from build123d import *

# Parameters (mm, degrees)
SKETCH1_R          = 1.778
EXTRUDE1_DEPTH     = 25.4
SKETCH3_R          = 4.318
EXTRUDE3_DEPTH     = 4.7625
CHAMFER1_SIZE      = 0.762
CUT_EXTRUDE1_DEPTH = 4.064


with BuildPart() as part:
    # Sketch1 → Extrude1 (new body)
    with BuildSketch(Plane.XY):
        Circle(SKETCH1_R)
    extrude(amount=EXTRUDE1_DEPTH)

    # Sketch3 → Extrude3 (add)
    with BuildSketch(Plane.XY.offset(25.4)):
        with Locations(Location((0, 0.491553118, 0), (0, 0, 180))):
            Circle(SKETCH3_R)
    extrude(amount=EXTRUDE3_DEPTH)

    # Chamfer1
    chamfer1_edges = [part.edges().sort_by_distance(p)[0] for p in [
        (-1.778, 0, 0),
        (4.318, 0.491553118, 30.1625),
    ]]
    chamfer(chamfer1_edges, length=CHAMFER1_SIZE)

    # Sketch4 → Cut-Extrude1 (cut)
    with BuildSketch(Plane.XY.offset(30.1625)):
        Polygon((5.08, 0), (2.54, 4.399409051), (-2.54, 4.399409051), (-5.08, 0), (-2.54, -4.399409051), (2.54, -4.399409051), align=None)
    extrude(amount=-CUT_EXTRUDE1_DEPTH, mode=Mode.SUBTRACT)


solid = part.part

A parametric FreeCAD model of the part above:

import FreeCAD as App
import Part
import Sketcher
Q = App.Units.Quantity


def edges_at(feature, points):
    """Names of the edges that pass closest to the given points."""
    edges = feature.Shape.Edges
    near = lambda p: min(range(len(edges)), key=lambda i: edges[i].distToShape(Part.Vertex(*p))[0])
    return sorted({f"Edge{near(p) + 1}" for p in points})

doc = App.newDocument("Part")
params = doc.addObject("Spreadsheet::Sheet", "Params")
for row, (alias, value) in enumerate([
    ("sketch1_diameter", "0.14 in"),
    ("pad1_length", "1 in"),
    ("sketch2_diameter", "0.34 in"),
    ("pad2_length", "0.1875 in"),
    ("chamfer_size", "0.03 in"),
    ("sketch3_width", "0.2 in"),
    ("sketch3_length", "0.2 in"),
    ("pocket1_length", "0.16 in"),
], start=1):
    params.set(f"A{row}", alias)
    params.set(f"B{row}", "=" + value)
    params.setAlias(f"B{row}", alias)

body = doc.addObject("PartDesign::Body", "Body")

sketch1 = body.newObject("Sketcher::SketchObject", "Sketch")
sketch1.AttachmentSupport = (doc.getObject("XY_Plane"), [""])
sketch1.MapMode = "FlatFace"
sketch1.addGeometry(Part.Circle(App.Vector(0, 0, 0), App.Vector(0, 0, 1), 1.8), False)
sketch1.addConstraint([
    Sketcher.Constraint("Coincident", 0, 3, -1, 1),
    Sketcher.Constraint("Diameter", 0, Q("0.14 in")),
])
sketch1.setExpression("Constraints[1]", "Params.sketch1_diameter")
pad1 = body.newObject("PartDesign::Pad", "Pad")
pad1.Profile = sketch1
pad1.setExpression("Length", "Params.pad1_length")

sketch2 = body.newObject("Sketcher::SketchObject", "Sketch001")
sketch2.AttachmentSupport = (doc.getObject("XY_Plane"), [""])
sketch2.MapMode = "FlatFace"
sketch2.AttachmentOffset = App.Placement(App.Vector(0, 0, 1 * 25.4), App.Rotation())
sketch2.addGeometry(Part.Circle(App.Vector(0, 0.5, 0), App.Vector(0, 0, 1), 4.3), False)
sketch2.addConstraint([
    Sketcher.Constraint("PointOnObject", 0, 3, -2),
    Sketcher.Constraint("Diameter", 0, Q("0.34 in")),
    Sketcher.Constraint("DistanceY", -1, 1, 0, 3, 0.491553),
])
sketch2.setExpression("Constraints[1]", "Params.sketch2_diameter")
pad2 = body.newObject("PartDesign::Pad", "Pad001")
pad2.Profile = sketch2
pad2.setExpression("Length", "Params.pad2_length")
doc.recompute()

chamfer = body.newObject("PartDesign::Chamfer", "Chamfer")
chamfer.Base = (pad2, edges_at(pad2, [(-1.778, 0, 0), (4.318, 0.492, 30.163)]))
chamfer.setExpression("Size", "Params.chamfer_size")

sketch3 = body.newObject("Sketcher::SketchObject", "Sketch002")
sketch3.AttachmentSupport = (doc.getObject("XY_Plane"), [""])
sketch3.MapMode = "FlatFace"
sketch3.AttachmentOffset = App.Placement(App.Vector(0, 0, 1.1875 * 25.4), App.Rotation())
sketch3.addGeometry([
    Part.LineSegment(App.Vector(5, 0, 0), App.Vector(3, 4, 0)),
    Part.LineSegment(App.Vector(3, 4, 0), App.Vector(-3, 4, 0)),
    Part.LineSegment(App.Vector(-3, 4, 0), App.Vector(-5, 0, 0)),
    Part.LineSegment(App.Vector(-5, 0, 0), App.Vector(-3, -4, 0)),
    Part.LineSegment(App.Vector(-3, -4, 0), App.Vector(3, -4, 0)),
    Part.LineSegment(App.Vector(3, -4, 0), App.Vector(5, 0, 0)),
], False)
sketch3.addConstraint([
    Sketcher.Constraint("Coincident", 0, 2, 1, 1),
    Sketcher.Constraint("Coincident", 1, 2, 2, 1),
    Sketcher.Constraint("Coincident", 2, 2, 3, 1),
    Sketcher.Constraint("Coincident", 3, 2, 4, 1),
    Sketcher.Constraint("Coincident", 4, 2, 5, 1),
    Sketcher.Constraint("Coincident", 5, 2, 0, 1),
    Sketcher.Constraint("Horizontal", 1),
    Sketcher.Constraint("Horizontal", 4),
    Sketcher.Constraint("Symmetric", 0, 2, 3, 2, -1, 1),
    Sketcher.Constraint("Symmetric", 2, 2, 5, 2, -1, 1),
    Sketcher.Constraint("PointOnObject", 2, 2, -1),
    Sketcher.Constraint("Parallel", 2, 5),
    Sketcher.Constraint("Vertical", 1, 2, 3, 2),
    Sketcher.Constraint("DistanceX", 1, 2, 1, 1, Q("0.2 in")),
    Sketcher.Constraint("Angle", 0, Q("120 deg")),
    Sketcher.Constraint("Distance", 0, Q("0.2 in")),
])
sketch3.setExpression("Constraints[13]", "Params.sketch3_width")
sketch3.setExpression("Constraints[15]", "Params.sketch3_length")
pocket1 = body.newObject("PartDesign::Pocket", "Pocket")
pocket1.Profile = sketch3
pocket1.setExpression("Length", "Params.pocket1_length")

doc.recompute()
